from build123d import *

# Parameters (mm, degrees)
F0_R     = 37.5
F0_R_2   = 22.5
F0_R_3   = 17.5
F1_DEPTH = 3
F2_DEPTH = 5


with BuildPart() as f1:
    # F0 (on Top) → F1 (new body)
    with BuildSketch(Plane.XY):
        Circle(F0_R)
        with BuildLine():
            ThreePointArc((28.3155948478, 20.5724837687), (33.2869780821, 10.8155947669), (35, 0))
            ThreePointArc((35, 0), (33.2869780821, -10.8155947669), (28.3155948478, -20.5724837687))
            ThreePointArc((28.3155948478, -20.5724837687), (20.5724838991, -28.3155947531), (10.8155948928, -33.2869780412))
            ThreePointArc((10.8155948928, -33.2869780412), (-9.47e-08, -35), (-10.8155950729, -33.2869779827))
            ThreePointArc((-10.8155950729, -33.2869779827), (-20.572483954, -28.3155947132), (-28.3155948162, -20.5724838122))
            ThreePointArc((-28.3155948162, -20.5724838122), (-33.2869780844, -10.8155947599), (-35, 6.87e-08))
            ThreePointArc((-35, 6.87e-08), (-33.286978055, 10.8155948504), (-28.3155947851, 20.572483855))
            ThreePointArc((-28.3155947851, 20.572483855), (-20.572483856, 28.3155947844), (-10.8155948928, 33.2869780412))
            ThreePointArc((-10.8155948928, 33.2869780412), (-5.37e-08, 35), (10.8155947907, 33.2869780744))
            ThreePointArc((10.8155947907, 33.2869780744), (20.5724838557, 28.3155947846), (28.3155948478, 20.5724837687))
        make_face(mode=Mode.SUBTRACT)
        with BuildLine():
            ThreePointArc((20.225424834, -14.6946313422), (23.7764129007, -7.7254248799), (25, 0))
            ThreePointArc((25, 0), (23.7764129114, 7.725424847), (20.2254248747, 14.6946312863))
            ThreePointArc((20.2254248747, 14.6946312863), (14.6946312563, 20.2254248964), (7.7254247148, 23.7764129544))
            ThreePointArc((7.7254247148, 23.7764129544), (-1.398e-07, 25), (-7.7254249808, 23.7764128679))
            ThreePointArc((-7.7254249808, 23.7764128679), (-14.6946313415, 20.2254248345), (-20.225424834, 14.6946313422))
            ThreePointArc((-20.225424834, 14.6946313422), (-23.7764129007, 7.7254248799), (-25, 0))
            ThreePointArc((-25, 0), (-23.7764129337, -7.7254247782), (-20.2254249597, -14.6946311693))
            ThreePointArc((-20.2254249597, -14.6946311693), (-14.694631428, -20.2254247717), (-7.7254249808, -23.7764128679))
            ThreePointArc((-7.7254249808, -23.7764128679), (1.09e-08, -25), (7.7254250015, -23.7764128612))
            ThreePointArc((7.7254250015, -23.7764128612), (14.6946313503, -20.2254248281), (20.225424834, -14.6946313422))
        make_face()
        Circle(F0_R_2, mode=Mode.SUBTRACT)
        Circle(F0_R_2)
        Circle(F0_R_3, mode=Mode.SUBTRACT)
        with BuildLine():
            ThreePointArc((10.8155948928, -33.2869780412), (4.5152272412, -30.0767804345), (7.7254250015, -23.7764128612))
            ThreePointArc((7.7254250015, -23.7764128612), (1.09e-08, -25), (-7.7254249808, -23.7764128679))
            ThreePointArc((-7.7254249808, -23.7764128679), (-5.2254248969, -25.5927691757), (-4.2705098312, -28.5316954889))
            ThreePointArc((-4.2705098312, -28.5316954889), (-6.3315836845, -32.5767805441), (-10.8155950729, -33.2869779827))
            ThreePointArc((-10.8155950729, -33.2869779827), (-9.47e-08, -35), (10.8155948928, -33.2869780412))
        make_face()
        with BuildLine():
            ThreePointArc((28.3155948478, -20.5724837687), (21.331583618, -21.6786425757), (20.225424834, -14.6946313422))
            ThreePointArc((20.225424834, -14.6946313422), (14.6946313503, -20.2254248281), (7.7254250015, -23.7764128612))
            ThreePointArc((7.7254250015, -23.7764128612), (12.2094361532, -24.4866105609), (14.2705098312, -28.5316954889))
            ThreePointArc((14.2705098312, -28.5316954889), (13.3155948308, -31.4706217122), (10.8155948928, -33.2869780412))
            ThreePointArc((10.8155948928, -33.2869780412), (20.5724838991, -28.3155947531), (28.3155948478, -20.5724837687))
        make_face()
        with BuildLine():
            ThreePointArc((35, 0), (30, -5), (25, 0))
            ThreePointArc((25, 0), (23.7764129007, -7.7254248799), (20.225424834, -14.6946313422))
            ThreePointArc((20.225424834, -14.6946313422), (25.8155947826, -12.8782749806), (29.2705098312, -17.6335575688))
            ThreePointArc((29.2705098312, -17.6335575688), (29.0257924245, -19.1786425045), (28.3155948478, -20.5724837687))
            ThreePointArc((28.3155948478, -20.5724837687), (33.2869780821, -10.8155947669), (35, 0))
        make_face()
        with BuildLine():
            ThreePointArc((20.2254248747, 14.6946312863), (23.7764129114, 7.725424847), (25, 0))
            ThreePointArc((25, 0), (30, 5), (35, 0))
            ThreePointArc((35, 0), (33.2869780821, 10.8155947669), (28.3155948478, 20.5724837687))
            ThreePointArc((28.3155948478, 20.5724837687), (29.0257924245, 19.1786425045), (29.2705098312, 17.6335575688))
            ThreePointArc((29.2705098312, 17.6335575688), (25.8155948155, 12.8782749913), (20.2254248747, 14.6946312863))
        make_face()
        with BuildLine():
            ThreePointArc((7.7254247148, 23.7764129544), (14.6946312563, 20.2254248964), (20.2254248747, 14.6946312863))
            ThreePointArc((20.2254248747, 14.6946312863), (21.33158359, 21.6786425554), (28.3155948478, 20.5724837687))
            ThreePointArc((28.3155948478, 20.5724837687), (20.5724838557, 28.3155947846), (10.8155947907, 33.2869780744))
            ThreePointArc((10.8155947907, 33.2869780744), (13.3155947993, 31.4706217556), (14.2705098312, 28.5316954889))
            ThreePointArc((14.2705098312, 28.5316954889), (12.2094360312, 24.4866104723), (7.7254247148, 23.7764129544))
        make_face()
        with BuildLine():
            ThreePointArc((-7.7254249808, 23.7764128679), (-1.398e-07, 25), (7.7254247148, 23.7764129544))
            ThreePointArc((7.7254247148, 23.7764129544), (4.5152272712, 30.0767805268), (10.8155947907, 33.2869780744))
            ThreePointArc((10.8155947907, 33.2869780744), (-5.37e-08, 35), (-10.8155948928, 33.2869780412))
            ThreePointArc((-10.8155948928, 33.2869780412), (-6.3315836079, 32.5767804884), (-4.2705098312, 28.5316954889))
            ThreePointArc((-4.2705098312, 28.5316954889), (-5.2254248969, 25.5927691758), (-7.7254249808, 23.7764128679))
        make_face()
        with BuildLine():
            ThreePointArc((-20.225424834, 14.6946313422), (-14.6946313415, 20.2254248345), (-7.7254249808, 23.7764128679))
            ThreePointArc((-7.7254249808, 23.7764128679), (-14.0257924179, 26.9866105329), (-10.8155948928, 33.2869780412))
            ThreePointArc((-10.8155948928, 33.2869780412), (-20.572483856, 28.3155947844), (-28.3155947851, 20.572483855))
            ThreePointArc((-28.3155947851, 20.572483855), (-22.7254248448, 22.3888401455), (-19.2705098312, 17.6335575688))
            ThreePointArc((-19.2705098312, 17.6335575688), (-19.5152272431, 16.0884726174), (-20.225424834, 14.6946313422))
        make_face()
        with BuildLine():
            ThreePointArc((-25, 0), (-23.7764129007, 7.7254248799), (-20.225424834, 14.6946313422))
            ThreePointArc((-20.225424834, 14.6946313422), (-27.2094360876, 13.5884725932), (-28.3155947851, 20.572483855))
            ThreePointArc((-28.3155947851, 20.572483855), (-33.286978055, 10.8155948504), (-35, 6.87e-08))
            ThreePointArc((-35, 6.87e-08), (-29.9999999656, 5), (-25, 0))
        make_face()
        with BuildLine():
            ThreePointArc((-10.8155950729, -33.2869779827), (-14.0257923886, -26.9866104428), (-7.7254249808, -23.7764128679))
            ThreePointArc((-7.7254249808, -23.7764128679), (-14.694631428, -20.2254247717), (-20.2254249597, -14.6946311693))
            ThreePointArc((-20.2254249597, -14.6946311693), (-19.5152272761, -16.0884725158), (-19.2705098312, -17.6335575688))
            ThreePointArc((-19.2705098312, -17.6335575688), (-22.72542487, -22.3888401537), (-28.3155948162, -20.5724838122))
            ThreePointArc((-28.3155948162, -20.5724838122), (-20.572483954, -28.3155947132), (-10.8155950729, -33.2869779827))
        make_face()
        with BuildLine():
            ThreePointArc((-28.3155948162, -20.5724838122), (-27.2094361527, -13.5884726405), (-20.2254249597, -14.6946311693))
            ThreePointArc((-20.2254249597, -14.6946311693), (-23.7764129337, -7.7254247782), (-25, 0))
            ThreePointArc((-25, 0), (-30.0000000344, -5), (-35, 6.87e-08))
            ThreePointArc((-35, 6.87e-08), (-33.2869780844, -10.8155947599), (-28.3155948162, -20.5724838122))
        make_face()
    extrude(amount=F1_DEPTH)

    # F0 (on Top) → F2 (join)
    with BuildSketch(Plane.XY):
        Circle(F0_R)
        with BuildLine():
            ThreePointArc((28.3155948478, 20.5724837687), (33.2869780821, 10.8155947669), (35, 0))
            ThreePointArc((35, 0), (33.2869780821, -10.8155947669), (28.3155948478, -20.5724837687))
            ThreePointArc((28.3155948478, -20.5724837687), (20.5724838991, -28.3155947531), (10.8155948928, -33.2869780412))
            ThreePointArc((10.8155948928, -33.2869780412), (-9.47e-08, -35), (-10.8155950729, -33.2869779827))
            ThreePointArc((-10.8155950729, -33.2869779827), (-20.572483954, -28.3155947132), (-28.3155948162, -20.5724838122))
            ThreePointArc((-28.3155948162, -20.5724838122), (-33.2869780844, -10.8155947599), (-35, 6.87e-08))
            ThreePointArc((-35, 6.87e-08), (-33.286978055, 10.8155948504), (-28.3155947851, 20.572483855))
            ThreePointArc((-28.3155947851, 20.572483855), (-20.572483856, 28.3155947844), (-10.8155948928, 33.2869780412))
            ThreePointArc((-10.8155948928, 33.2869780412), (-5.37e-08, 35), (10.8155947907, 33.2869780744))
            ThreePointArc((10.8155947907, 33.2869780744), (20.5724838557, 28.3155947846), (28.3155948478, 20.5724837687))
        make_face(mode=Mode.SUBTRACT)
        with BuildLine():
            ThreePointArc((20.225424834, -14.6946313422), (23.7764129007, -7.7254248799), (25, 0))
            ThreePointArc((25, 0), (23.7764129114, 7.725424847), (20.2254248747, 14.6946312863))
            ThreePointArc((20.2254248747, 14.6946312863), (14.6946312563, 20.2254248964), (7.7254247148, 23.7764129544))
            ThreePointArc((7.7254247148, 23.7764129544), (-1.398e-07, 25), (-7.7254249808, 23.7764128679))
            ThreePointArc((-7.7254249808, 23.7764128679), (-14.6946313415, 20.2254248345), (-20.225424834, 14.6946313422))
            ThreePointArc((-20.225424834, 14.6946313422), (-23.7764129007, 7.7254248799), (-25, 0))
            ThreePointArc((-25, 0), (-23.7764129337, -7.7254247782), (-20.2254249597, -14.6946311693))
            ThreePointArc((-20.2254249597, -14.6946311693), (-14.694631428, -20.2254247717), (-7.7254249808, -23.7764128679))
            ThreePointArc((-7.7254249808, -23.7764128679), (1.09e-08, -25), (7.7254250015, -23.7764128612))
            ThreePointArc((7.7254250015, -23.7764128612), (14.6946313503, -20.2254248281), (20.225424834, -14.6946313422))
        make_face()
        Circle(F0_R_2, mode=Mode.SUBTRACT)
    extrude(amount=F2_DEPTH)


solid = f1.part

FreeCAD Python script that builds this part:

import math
import FreeCAD as App
import Part
import Sketcher
from FreeCAD import Vector

doc = App.newDocument("Part")
body = doc.addObject("PartDesign::Body", "Body")

# Sketch on XY plane
sketch1 = body.newObject("Sketcher::SketchObject", "Sketch")
sketch1.AttachmentSupport = (doc.getObject("XY_Plane"), [""])
sketch1.MapMode = "FlatFace"
sketch1.addGeometry([
    Part.Circle(Vector(0, 0, 0), Vector(0, 0, 1), 37.5),  # 0
    Part.ArcOfCircle(Part.Circle(Vector(24.27051, 17.633558, 0), Vector(0, 0, 1), 5), math.radians(0), math.radians(35.999999)),  # 1
    Part.ArcOfCircle(Part.Circle(Vector(24.27051, 17.633558, 0), Vector(0, 0, 1), 5), math.radians(-144), math.radians(0)),  # 2
    Part.ArcOfCircle(Part.Circle(Vector(24.27051, 17.633558, 0), Vector(0, 0, 1), 5), math.radians(35.999999), math.radians(216)),  # 3
    Part.ArcOfCircle(Part.Circle(Vector(-24.27051, -17.633558, 0), Vector(0, 0, 1), 5), math.radians(0), math.radians(36.000002)),  # 4
    Part.ArcOfCircle(Part.Circle(Vector(-24.27051, -17.633558, 0), Vector(0, 0, 1), 5), math.radians(-144), math.radians(0)),  # 5
    Part.ArcOfCircle(Part.Circle(Vector(-24.27051, -17.633558, 0), Vector(0, 0, 1), 5), math.radians(36.000002), math.radians(216)),  # 6
    Part.Circle(Vector(-30, 0, 0), Vector(0, 0, 1), 5),  # 7
    Part.ArcOfCircle(Part.Circle(Vector(-9.27051, -28.531695, 0), Vector(0, 0, 1), 5), math.radians(0), math.radians(72.000001)),  # 8
    Part.ArcOfCircle(Part.Circle(Vector(-9.27051, -28.531695, 0), Vector(0, 0, 1), 5), math.radians(-108.000003), math.radians(0)),  # 9
    Part.ArcOfCircle(Part.Circle(Vector(-9.27051, -28.531695, 0), Vector(0, 0, 1), 5), math.radians(72.000001), math.radians(251.999997)),  # 10
    Part.ArcOfCircle(Part.Circle(Vector(-24.27051, 17.633558, 0), Vector(0, 0, 1), 5), math.radians(0), math.radians(144)),  # 11
    Part.ArcOfCircle(Part.Circle(Vector(-24.27051, 17.633558, 0), Vector(0, 0, 1), 5), math.radians(-36), math.radians(0)),  # 12
    Part.ArcOfCircle(Part.Circle(Vector(-24.27051, 17.633558, 0), Vector(0, 0, 1), 5), math.radians(144), math.radians(324)),  # 13
    Part.ArcOfCircle(Part.Circle(Vector(-9.27051, 28.531695, 0), Vector(0, 0, 1), 5), math.radians(0), math.radians(108.000001)),  # 14
    Part.ArcOfCircle(Part.Circle(Vector(-9.27051, 28.531695, 0), Vector(0, 0, 1), 5), math.radians(-72.000001), math.radians(0)),  # 15
    Part.ArcOfCircle(Part.Circle(Vector(-9.27051, 28.531695, 0), Vector(0, 0, 1), 5), math.radians(108.000001), math.radians(287.999999)),  # 16
    Part.ArcOfCircle(Part.Circle(Vector(9.27051, 28.531695, 0), Vector(0, 0, 1), 5), math.radians(0), math.radians(72)),  # 17
    Part.ArcOfCircle(Part.Circle(Vector(9.27051, 28.531695, 0), Vector(0, 0, 1), 5), math.radians(-108.000002), math.radians(0)),  # 18
    Part.ArcOfCircle(Part.Circle(Vector(9.27051, 28.531695, 0), Vector(0, 0, 1), 5), math.radians(72), math.radians(251.999998)),  # 19
    Part.Circle(Vector(30, 0, 0), Vector(0, 0, 1), 5),  # 20
    Part.ArcOfCircle(Part.Circle(Vector(24.27051, -17.633558, 0), Vector(0, 0, 1), 5), math.radians(144), math.radians(324.000001)),  # 21
    Part.ArcOfCircle(Part.Circle(Vector(24.27051, -17.633558, 0), Vector(0, 0, 1), 5), math.radians(0), math.radians(144)),  # 22
    Part.ArcOfCircle(Part.Circle(Vector(24.27051, -17.633558, 0), Vector(0, 0, 1), 5), math.radians(-35.999999), math.radians(0)),  # 23
    Part.ArcOfCircle(Part.Circle(Vector(9.27051, -28.531695, 0), Vector(0, 0, 1), 5), math.radians(107.999998), math.radians(288.000001)),  # 24
    Part.ArcOfCircle(Part.Circle(Vector(9.27051, -28.531695, 0), Vector(0, 0, 1), 5), math.radians(0), math.radians(107.999998)),  # 25
    Part.ArcOfCircle(Part.Circle(Vector(9.27051, -28.531695, 0), Vector(0, 0, 1), 5), math.radians(-71.999999), math.radians(0)),  # 26
    Part.Circle(Vector(0, 0, 0), Vector(0, 0, 1), 17.5),  # 27
], False)
sketch1.addConstraint([
    Sketcher.Constraint("Tangent", 1, 1, 2, 2),
    Sketcher.Constraint("Tangent", 2, 1, 3, 2),
    Sketcher.Constraint("Tangent", 3, 1, 1, 2),
    Sketcher.Constraint("Tangent", 4, 1, 5, 2),
    Sketcher.Constraint("Tangent", 5, 1, 6, 2),
    Sketcher.Constraint("Tangent", 6, 1, 4, 2),
    Sketcher.Constraint("Tangent", 8, 1, 9, 2),
    Sketcher.Constraint("Tangent", 9, 1, 10, 2),
    Sketcher.Constraint("Tangent", 10, 1, 8, 2),
    Sketcher.Constraint("Tangent", 11, 1, 12, 2),
    Sketcher.Constraint("Tangent", 12, 1, 13, 2),
    Sketcher.Constraint("Tangent", 13, 1, 11, 2),
    Sketcher.Constraint("Tangent", 14, 1, 15, 2),
    Sketcher.Constraint("Tangent", 15, 1, 16, 2),
    Sketcher.Constraint("Tangent", 16, 1, 14, 2),
    Sketcher.Constraint("Tangent", 17, 1, 18, 2),
    Sketcher.Constraint("Tangent", 18, 1, 19, 2),
    Sketcher.Constraint("Tangent", 19, 1, 17, 2),
    Sketcher.Constraint("Tangent", 21, 1, 22, 2),
    Sketcher.Constraint("Tangent", 22, 1, 23, 2),
    Sketcher.Constraint("Tangent", 23, 1, 21, 2),
    Sketcher.Constraint("Tangent", 24, 1, 25, 2),
    Sketcher.Constraint("Tangent", 25, 1, 26, 2),
    Sketcher.Constraint("Tangent", 26, 1, 24, 2),
    Sketcher.Constraint("Coincident", 0, 3, -1, 1),
    Sketcher.Constraint("Coincident", 27, 3, -1, 1),
    Sketcher.Constraint("Equal", 3, 4),
    Sketcher.Constraint("Equal", 6, 7),
    Sketcher.Constraint("Equal", 7, 8),
    Sketcher.Constraint("Equal", 10, 11),
    Sketcher.Constraint("Equal", 13, 14),
    Sketcher.Constraint("Equal", 16, 17),
    Sketcher.Constraint("Equal", 19, 20),
    Sketcher.Constraint("Equal", 20, 21),
    Sketcher.Constraint("Equal", 23, 24),
    Sketcher.Constraint("Symmetric", 1, 3, 4, 3, -1, 1),
    Sketcher.Constraint("Symmetric", 8, 3, 17, 3, -1, 1),
    Sketcher.Constraint("Symmetric", 7, 3, 20, 3, -1, 1),
    Sketcher.Constraint("Symmetric", 11, 3, 21, 3, -1, 1),
    Sketcher.Constraint("Symmetric", 14, 3, 24, 3, -1, 1),
    Sketcher.Constraint("Symmetric", 1, 3, 11, 3, -2),
    Sketcher.Constraint("Symmetric", 14, 3, 17, 3, -2),
    Sketcher.Constraint("PointOnObject", 7, 3, -1),
    Sketcher.Constraint("Horizontal", 13, 3, 1, 1),
    Sketcher.Constraint("Horizontal", 23, 3, 4, 1),
    Sketcher.Constraint("Horizontal", 26, 3, 8, 1),
    Sketcher.Constraint("Horizontal", 1, 1, 11, 1),
    Sketcher.Constraint("Horizontal", 2, 1, 12, 1),
    Sketcher.Constraint("Horizontal", 3, 1, 13, 1),
    Sketcher.Constraint("Horizontal", 19, 3, 14, 1),
    Sketcher.Constraint("Horizontal", 14, 1, 17, 1),
    Sketcher.Constraint("Horizontal", 15, 1, 18, 1),
    Sketcher.Constraint("Horizontal", 16, 1, 19, 1),
    Sketcher.Constraint("Horizontal", 6, 1, 21, 1),
    Sketcher.Constraint("Horizontal", 4, 1, 22, 1),
    Sketcher.Constraint("Horizontal", 5, 1, 23, 1),
    Sketcher.Constraint("Horizontal", 10, 1, 24, 1),
    Sketcher.Constraint("Horizontal", 8, 1, 25, 1),
    Sketcher.Constraint("Horizontal", 9, 1, 26, 1),
    Sketcher.Constraint("Vertical", 6, 1, 12, 1),
    Sketcher.Constraint("Vertical", 5, 1, 13, 1),
    Sketcher.Constraint("Vertical", 10, 1, 15, 1),
    Sketcher.Constraint("Vertical", 9, 1, 16, 1),
    Sketcher.Constraint("Diameter", 0, 75.0),
    Sketcher.Constraint("Diameter", 7, 10.0),
    Sketcher.Constraint("Diameter", 27, 35.0),
    Sketcher.Constraint("DistanceX", 7, 3, -1, 1, 30.0),
    Sketcher.Constraint("DistanceX", 4, 3, 8, 3, 15.0),
    Sketcher.Constraint("DistanceX", 24, 1, 21, 1, 12.5),
    Sketcher.Constraint("DistanceX", -1, 1, 1, 3, 24.27051),
    Sketcher.Constraint("DistanceY", -1, 1, 2, 1, 14.694631),
    Sketcher.Constraint("DistanceY", -1, 1, 16, 1, 33.286978),
    Sketcher.Constraint("DistanceX", 2, 1, 3, 1, 8.09017),
    Sketcher.Constraint("DistanceY", 9, 1, 4, 1, 15.65342),
    Sketcher.Constraint("DistanceX", 9, 1, 10, 1, 3.09017),
])
pad1 = body.newObject("PartDesign::Pad", "Pad")
pad1.Profile = sketch1
pad1.Length = 3

# Sketch on XY plane
sketch2 = body.newObject("Sketcher::SketchObject", "Sketch001")
sketch2.AttachmentSupport = (doc.getObject("XY_Plane"), [""])
sketch2.MapMode = "FlatFace"
sketch2.addGeometry([
    Part.Circle(Vector(0, 0, 0), Vector(0, 0, 1), 37.5),  # 0
    Part.ArcOfCircle(Part.Circle(Vector(0, 0, 0), Vector(0, 0, 1), 35), math.radians(36), math.radians(72)),  # 1
    Part.ArcOfCircle(Part.Circle(Vector(0, 0, 0), Vector(0, 0, 1), 35), math.radians(0), math.radians(36)),  # 2
    Part.ArcOfCircle(Part.Circle(Vector(0, 0, 0), Vector(0, 0, 1), 35), math.radians(-36), math.radians(0)),  # 3
    Part.ArcOfCircle(Part.Circle(Vector(0, 0, 0), Vector(0, 0, 1), 35), math.radians(-108), math.radians(-36)),  # 4
    Part.ArcOfCircle(Part.Circle(Vector(0, 0, 0), Vector(0, 0, 1), 35), math.radians(-144), math.radians(-108)),  # 5
    Part.ArcOfCircle(Part.Circle(Vector(0, 0, 0), Vector(0, 0, 1), 35), math.radians(180), math.radians(216)),  # 6
    Part.ArcOfCircle(Part.Circle(Vector(0, 0, 0), Vector(0, 0, 1), 35), math.radians(144), math.radians(180)),  # 7
    Part.ArcOfCircle(Part.Circle(Vector(0, 0, 0), Vector(0, 0, 1), 35), math.radians(108), math.radians(144)),  # 8
    Part.ArcOfCircle(Part.Circle(Vector(0, 0, 0), Vector(0, 0, 1), 35), math.radians(72), math.radians(108)),  # 9
    Part.ArcOfCircle(Part.Circle(Vector(0, 0, 0), Vector(0, 0, 1), 25), math.radians(-36), math.radians(0)),  # 10
    Part.ArcOfCircle(Part.Circle(Vector(0, 0, 0), Vector(0, 0, 1), 25), math.radians(0), math.radians(36)),  # 11
    Part.ArcOfCircle(Part.Circle(Vector(0, 0, 0), Vector(0, 0, 1), 25), math.radians(36), math.radians(72)),  # 12
    Part.ArcOfCircle(Part.Circle(Vector(0, 0, 0), Vector(0, 0, 1), 25), math.radians(72), math.radians(144)),  # 13
    Part.ArcOfCircle(Part.Circle(Vector(0, 0, 0), Vector(0, 0, 1), 25), math.radians(144), math.radians(180)),  # 14
    Part.ArcOfCircle(Part.Circle(Vector(0, 0, 0), Vector(0, 0, 1), 25), math.radians(180), math.radians(216)),  # 15
    Part.ArcOfCircle(Part.Circle(Vector(0, 0, 0), Vector(0, 0, 1), 25), math.radians(-144), math.radians(-108)),  # 16
    Part.ArcOfCircle(Part.Circle(Vector(0, 0, 0), Vector(0, 0, 1), 25), math.radians(-108), math.radians(-72)),  # 17
    Part.ArcOfCircle(Part.Circle(Vector(0, 0, 0), Vector(0, 0, 1), 25), math.radians(-72), math.radians(-36)),  # 18
    Part.Circle(Vector(0, 0, 0), Vector(0, 0, 1), 22.5),  # 19
], False)
sketch2.addConstraint([
    Sketcher.Constraint("Tangent", 1, 1, 2, 2),
    Sketcher.Constraint("Tangent", 2, 1, 3, 2),
    Sketcher.Constraint("Tangent", 3, 1, 4, 2),
    Sketcher.Constraint("Tangent", 4, 1, 5, 2),
    Sketcher.Constraint("Tangent", 5, 1, 6, 2),
    Sketcher.Constraint("Tangent", 6, 1, 7, 2),
    Sketcher.Constraint("Tangent", 7, 1, 8, 2),
    Sketcher.Constraint("Tangent", 8, 1, 9, 2),
    Sketcher.Constraint("Tangent", 9, 1, 1, 2),
    Sketcher.Constraint("Tangent", 10, 2, 11, 1),
    Sketcher.Constraint("Tangent", 11, 2, 12, 1),
    Sketcher.Constraint("Tangent", 12, 2, 13, 1),
    Sketcher.Constraint("Tangent", 13, 2, 14, 1),
    Sketcher.Constraint("Tangent", 14, 2, 15, 1),
    Sketcher.Constraint("Tangent", 15, 2, 16, 1),
    Sketcher.Constraint("Tangent", 16, 2, 17, 1),
    Sketcher.Constraint("Tangent", 17, 2, 18, 1),
    Sketcher.Constraint("Tangent", 18, 2, 10, 1),
    Sketcher.Constraint("Coincident", 0, 3, -1, 1),
    Sketcher.Constraint("Coincident", 1, 3, -1, 1),
    Sketcher.Constraint("Coincident", 3, 3, -1, 1),
    Sketcher.Constraint("Coincident", 5, 3, -1, 1),
    Sketcher.Constraint("Coincident", 7, 3, -1, 1),
    Sketcher.Constraint("Coincident", 10, 3, -1, 1),
    Sketcher.Constraint("Coincident", 12, 3, -1, 1),
    Sketcher.Constraint("Coincident", 14, 3, -1, 1),
    Sketcher.Constraint("Coincident", 16, 3, -1, 1),
    Sketcher.Constraint("Coincident", 19, 3, -1, 1),
    Sketcher.Constraint("PointOnObject", 2, 1, -1),
    Sketcher.Constraint("PointOnObject", 6, 1, -1),
    Sketcher.Constraint("PointOnObject", 10, 2, -1),
    Sketcher.Constraint("PointOnObject", 14, 2, -1),
    Sketcher.Constraint("Horizontal", 3, 1, 5, 1),
    Sketcher.Constraint("Horizontal", 1, 1, 7, 1),
    Sketcher.Constraint("Horizontal", 8, 1, 9, 1),
    Sketcher.Constraint("Horizontal", 11, 2, 13, 2),
    Sketcher.Constraint("Horizontal", 16, 2, 17, 2),
    Sketcher.Constraint("Horizontal", 15, 2, 18, 2),
    Sketcher.Constraint("Vertical", 1, 1, 3, 1),
    Sketcher.Constraint("Vertical", 4, 1, 8, 1),
    Sketcher.Constraint("Vertical", 13, 2, 15, 2),
    Sketcher.Constraint("Vertical", 12, 2, 17, 2),
    Sketcher.Constraint("Diameter", 0, 75.0),
    Sketcher.Constraint("Diameter", 19, 45.0),
    Sketcher.Constraint("Radius", 1, 35.0),
    Sketcher.Constraint("Radius", 10, 25.0),
    Sketcher.Constraint("DistanceX", 5, 1, 4, 1, 17.5),
    Sketcher.Constraint("DistanceX", 12, 2, 11, 2, 12.5),
    Sketcher.Constraint("DistanceY", -1, 1, 8, 1, 33.286978),
    Sketcher.Constraint("DistanceY", -1, 1, 11, 2, 14.694631),
])
pad2 = body.newObject("PartDesign::Pad", "Pad001")
pad2.Profile = sketch2
pad2.Length = 5

doc.recompute()
